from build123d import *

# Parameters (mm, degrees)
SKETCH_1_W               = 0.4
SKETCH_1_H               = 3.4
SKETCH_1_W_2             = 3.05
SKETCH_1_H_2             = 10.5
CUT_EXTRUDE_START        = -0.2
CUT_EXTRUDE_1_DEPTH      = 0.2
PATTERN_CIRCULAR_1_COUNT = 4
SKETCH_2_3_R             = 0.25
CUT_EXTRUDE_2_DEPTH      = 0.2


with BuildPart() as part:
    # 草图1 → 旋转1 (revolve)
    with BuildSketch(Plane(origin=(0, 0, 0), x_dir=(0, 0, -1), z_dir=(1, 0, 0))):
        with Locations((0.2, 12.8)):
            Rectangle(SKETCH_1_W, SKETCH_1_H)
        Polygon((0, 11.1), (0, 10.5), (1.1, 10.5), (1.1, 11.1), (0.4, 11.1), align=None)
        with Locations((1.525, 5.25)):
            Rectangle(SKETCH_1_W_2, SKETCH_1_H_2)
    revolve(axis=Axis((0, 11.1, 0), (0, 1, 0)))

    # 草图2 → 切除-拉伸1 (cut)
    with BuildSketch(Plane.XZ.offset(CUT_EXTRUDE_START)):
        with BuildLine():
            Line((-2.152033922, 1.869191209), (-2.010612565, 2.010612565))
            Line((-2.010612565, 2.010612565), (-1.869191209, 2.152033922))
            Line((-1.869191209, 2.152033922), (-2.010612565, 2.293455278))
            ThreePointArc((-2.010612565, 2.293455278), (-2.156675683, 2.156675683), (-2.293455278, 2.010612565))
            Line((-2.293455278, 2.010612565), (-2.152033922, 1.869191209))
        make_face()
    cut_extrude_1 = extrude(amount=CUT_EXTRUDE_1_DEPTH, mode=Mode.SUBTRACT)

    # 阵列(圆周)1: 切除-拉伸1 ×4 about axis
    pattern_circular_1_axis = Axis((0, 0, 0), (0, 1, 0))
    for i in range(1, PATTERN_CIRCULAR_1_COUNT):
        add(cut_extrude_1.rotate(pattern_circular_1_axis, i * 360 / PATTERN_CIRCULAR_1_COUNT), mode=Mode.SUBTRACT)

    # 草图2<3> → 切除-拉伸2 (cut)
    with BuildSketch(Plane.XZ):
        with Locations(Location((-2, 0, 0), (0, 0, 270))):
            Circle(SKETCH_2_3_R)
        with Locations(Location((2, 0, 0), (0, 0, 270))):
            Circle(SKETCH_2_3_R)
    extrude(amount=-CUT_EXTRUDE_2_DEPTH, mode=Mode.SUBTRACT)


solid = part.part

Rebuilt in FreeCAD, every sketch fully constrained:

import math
import FreeCAD as App
import Part
import Sketcher
Q = App.Units.Quantity


def add_polygon(sketch, points):
    """Adds a closed chain of lines whose ends are joined by coincident constraints."""
    first, n = sketch.GeometryCount, len(points)
    for a, b in zip(points, points[1:] + points[:1]):
        sketch.addGeometry(Part.LineSegment(App.Vector(*a, 0), App.Vector(*b, 0)), False)
    for i in range(n):
        sketch.addConstraint(Sketcher.Constraint("Coincident", first + i, 2, first + (i + 1) % n, 1))

doc = App.newDocument("Part")
params = doc.addObject("Spreadsheet::Sheet", "Params")
for row, (alias, value) in enumerate([
    ("sketch1_width", "14.5 mm"),
    ("sketch1_width2", "10.5 mm"),
    ("sketch1_width3", "0.6 mm"),
    ("sketch1_height", "0.7 mm"),
    ("sketch1_height2", "0.4 mm"),
    ("revolution_angle", "360 deg"),
    ("sketch2_radius", "3.05 mm"),
    ("sketch2_length", "0.2 mm"),
    ("pocket1_length", "0.2 mm"),
    ("sketch3_diameter", "0.5 mm"),
    ("pocket2_length", "0.2 mm"),
], start=1):
    params.set(f"A{row}", alias)
    params.set(f"B{row}", "=" + value)
    params.setAlias(f"B{row}", alias)

body = doc.addObject("PartDesign::Body", "Body")

sketch1 = doc.addObject("Sketcher::SketchObject", "Sketch")
body.addObject(sketch1)
sketch1.AttachmentSupport = (doc.YZ_Plane, [""])
sketch1.MapMode = "FlatFace"
add_polygon(sketch1, [(14.5, 0), (0, 0), (0, -3.05), (10.5, -3.05), (10.5, -1.1), (11.1, -1.1), (11.1, -0.4), (14.5, -0.4)])
sketch1.addConstraint(Sketcher.Constraint("Horizontal", 0))
sketch1.addConstraint(Sketcher.Constraint("Vertical", 1))
sketch1.addConstraint(Sketcher.Constraint("Horizontal", 2))
sketch1.addConstraint(Sketcher.Constraint("Vertical", 3))
sketch1.addConstraint(Sketcher.Constraint("Horizontal", 4))
sketch1.addConstraint(Sketcher.Constraint("Vertical", 5))
sketch1.addConstraint(Sketcher.Constraint("Horizontal", 6))
sketch1.addConstraint(Sketcher.Constraint("Vertical", 7))
sketch1.addConstraint(Sketcher.Constraint("Coincident", 0, 2, -1, 1))
sketch1.addConstraint(Sketcher.Constraint("DistanceX", 0, 2, 0, 1, Q("14.5 mm")))
sketch1.addConstraint(Sketcher.Constraint("DistanceX", 2, 1, 2, 2, Q("10.5 mm")))
sketch1.addConstraint(Sketcher.Constraint("DistanceX", 4, 1, 4, 2, Q("0.6 mm")))
sketch1.addConstraint(Sketcher.Constraint("DistanceY", 5, 1, 5, 2, Q("0.7 mm")))
sketch1.addConstraint(Sketcher.Constraint("DistanceY", 7, 1, 7, 2, Q("0.4 mm")))
sketch1.addConstraint(Sketcher.Constraint("DistanceY", 1, 2, 1, 1, Q("3.05 mm")))
sketch1.setExpression("Constraints[17]", "Params.sketch1_width")
sketch1.setExpression("Constraints[18]", "Params.sketch1_width2")
sketch1.setExpression("Constraints[19]", "Params.sketch1_width3")
sketch1.setExpression("Constraints[20]", "Params.sketch1_height")
sketch1.setExpression("Constraints[21]", "Params.sketch1_height2")
revolution = doc.addObject("PartDesign::Revolution", "Revolution")
body.addObject(revolution)
revolution.Profile = sketch1
revolution.ReferenceAxis = (sketch1, ["H_Axis"])
revolution.setExpression("Angle", "Params.revolution_angle")

sketch2 = doc.addObject("Sketcher::SketchObject", "Sketch001")
body.addObject(sketch2)
sketch2.AttachmentSupport = (doc.XZ_Plane, [""])
sketch2.MapMode = "FlatFace"
sketch2.AttachmentOffset = App.Placement(App.Vector(0, 0, -0.2), App.Rotation())
sketch2.addGeometry(Part.LineSegment(App.Vector(-2.15, 1.87, 0), App.Vector(-2.01, 2.01, 0)), False)
sketch2.addGeometry(Part.LineSegment(App.Vector(-2.01, 2.01, 0), App.Vector(-1.87, 2.15, 0)), False)
sketch2.addGeometry(Part.LineSegment(App.Vector(-1.87, 2.15, 0), App.Vector(-2.01, 2.29, 0)), False)
sketch2.addGeometry(Part.ArcOfCircle(Part.Circle(App.Vector(0, 0, 0), App.Vector(0, 0, 1), 3.05), math.radians(131.24), math.radians(138.76)), False)
sketch2.addGeometry(Part.LineSegment(App.Vector(-2.29, 2.01, 0), App.Vector(-2.15, 1.87, 0)), False)
sketch2.addConstraint(Sketcher.Constraint("Coincident", 0, 2, 1, 1))
sketch2.addConstraint(Sketcher.Constraint("Coincident", 1, 2, 2, 1))
sketch2.addConstraint(Sketcher.Constraint("Coincident", 2, 2, 3, 1))
sketch2.addConstraint(Sketcher.Constraint("Coincident", 3, 2, 4, 1))
sketch2.addConstraint(Sketcher.Constraint("Coincident", 4, 2, 0, 1))
sketch2.addConstraint(Sketcher.Constraint("Coincident", 3, 3, -1, 1))
sketch2.addConstraint(Sketcher.Constraint("Parallel", 0, 1))
sketch2.addConstraint(Sketcher.Constraint("Perpendicular", 1, 2))
sketch2.addConstraint(Sketcher.Constraint("Parallel", 2, 4))
sketch2.addConstraint(Sketcher.Constraint("Horizontal", 0, 2, 3, 2))
sketch2.addConstraint(Sketcher.Constraint("Vertical", 0, 2, 2, 2))
sketch2.addConstraint(Sketcher.Constraint("Equal", 0, 1))
sketch2.addConstraint(Sketcher.Constraint("Equal", 1, 2))
sketch2.addConstraint(Sketcher.Constraint("Radius", 3, Q("3.05 mm")))
sketch2.addConstraint(Sketcher.Constraint("Distance", 0, Q("0.2 mm")))
sketch2.setExpression("Constraints[13]", "Params.sketch2_radius")
sketch2.setExpression("Constraints[14]", "Params.sketch2_length")
pocket1 = doc.addObject("PartDesign::Pocket", "Pocket")
body.addObject(pocket1)
pocket1.Profile = sketch2
pocket1.setExpression("Length", "Params.pocket1_length")
pocket1.Reversed = True
doc.recompute()

polarpattern = doc.addObject("PartDesign::PolarPattern", "PolarPattern")
body.addObject(polarpattern)
polarpattern.Originals = [pocket1]
polarpattern.Axis = (doc.Y_Axis, [""])
polarpattern.Angle = 360
polarpattern.Occurrences = 4
body.Tip = polarpattern

sketch3 = doc.addObject("Sketcher::SketchObject", "Sketch002")
body.addObject(sketch3)
sketch3.AttachmentSupport = (doc.XZ_Plane, [""])
sketch3.MapMode = "FlatFace"
sketch3.addGeometry(Part.Circle(App.Vector(-2, 0, 0), App.Vector(0, 0, 1), 0.25), False)
sketch3.addGeometry(Part.Circle(App.Vector(2, 0, 0), App.Vector(0, 0, 1), 0.25), False)
sketch3.addConstraint(Sketcher.Constraint("Equal", 0, 1))
sketch3.addConstraint(Sketcher.Constraint("Symmetric", 0, 3, 1, 3, -1, 1))
sketch3.addConstraint(Sketcher.Constraint("PointOnObject", 0, 3, -1))
sketch3.addConstraint(Sketcher.Constraint("Diameter", 0, Q("0.5 mm")))
sketch3.addConstraint(Sketcher.Constraint("DistanceX", 0, 3, -1, 1, Q("2 mm")))
sketch3.setExpression("Constraints[3]", "Params.sketch3_diameter")
pocket2 = doc.addObject("PartDesign::Pocket", "Pocket001")
body.addObject(pocket2)
pocket2.Profile = sketch3
pocket2.setExpression("Length", "Params.pocket2_length")

doc.recompute()
